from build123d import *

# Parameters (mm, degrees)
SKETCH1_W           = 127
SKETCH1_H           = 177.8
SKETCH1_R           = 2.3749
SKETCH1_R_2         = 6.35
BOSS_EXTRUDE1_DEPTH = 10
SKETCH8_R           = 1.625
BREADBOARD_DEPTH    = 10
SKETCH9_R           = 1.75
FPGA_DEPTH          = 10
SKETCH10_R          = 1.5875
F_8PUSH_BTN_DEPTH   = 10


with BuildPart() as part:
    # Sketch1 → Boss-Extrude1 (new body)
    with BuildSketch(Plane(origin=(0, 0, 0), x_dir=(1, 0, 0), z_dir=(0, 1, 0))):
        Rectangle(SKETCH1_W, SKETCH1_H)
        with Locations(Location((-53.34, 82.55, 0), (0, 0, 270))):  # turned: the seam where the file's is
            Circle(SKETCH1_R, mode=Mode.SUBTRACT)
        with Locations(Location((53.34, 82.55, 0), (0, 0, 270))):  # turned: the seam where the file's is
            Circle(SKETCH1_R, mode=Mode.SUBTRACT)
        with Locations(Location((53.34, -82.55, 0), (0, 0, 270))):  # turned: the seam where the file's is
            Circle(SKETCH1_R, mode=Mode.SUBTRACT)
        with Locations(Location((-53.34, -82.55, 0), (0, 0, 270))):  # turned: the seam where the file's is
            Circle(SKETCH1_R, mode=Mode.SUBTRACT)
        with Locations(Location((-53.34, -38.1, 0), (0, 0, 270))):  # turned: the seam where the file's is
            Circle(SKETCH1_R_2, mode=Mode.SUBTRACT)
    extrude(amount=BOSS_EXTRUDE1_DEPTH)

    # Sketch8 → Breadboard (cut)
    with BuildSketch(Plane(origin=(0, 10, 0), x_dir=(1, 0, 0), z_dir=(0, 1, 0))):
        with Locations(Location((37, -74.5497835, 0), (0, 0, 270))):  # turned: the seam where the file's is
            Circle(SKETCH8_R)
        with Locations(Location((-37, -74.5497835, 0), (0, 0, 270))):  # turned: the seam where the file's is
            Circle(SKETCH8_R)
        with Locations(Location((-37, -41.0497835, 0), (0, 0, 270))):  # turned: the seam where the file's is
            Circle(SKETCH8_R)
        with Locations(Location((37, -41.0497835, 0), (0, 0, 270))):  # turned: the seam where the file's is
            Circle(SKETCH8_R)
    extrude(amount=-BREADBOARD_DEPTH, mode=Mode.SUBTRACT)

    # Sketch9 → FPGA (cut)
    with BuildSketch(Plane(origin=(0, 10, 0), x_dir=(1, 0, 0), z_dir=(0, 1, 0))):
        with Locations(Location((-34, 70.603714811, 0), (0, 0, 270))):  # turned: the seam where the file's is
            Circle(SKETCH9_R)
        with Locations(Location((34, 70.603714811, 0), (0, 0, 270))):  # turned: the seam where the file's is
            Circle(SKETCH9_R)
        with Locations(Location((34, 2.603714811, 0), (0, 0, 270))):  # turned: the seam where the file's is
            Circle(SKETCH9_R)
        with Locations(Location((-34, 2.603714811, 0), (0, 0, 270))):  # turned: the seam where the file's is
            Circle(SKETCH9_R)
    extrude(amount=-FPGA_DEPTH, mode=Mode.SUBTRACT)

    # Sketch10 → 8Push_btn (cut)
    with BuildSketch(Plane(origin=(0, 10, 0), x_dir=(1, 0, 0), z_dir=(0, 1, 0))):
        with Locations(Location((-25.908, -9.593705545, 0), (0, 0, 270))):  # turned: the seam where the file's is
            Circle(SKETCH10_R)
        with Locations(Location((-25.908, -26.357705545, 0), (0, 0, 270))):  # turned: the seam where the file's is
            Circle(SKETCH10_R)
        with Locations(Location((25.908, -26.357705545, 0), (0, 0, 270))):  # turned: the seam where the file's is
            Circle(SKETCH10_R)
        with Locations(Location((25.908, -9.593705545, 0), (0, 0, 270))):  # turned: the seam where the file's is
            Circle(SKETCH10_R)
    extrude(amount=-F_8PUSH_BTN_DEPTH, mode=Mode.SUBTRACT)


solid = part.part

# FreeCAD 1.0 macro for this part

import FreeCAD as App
import Part
import Sketcher

V = App.Vector
Q = App.Units.Quantity

doc = App.newDocument("Part")
body = doc.addObject("PartDesign::Body", "Body")

sketch1 = body.newObject("Sketcher::SketchObject", "Sketch")
sketch1.AttachmentSupport = (doc.getObject("XZ_Plane"), [""])
sketch1.MapMode = "FlatFace"
sketch1.addGeometry([
    Part.LineSegment(V(-63.5, -88.9, 0), V(-63.5, 88.9, 0)),
    Part.LineSegment(V(-63.5, 88.9, 0), V(63.5, 88.9, 0)),
    Part.LineSegment(V(63.5, 88.9, 0), V(63.5, -88.9, 0)),
    Part.LineSegment(V(63.5, -88.9, 0), V(-63.5, -88.9, 0)),
    Part.Circle(V(-53.3, 82.5, 0), V(0, 0, 1), 2.4),
    Part.Circle(V(-53.3, 38.1, 0), V(0, 0, 1), 6.3),
    Part.Circle(V(53.3, 82.5, 0), V(0, 0, 1), 2.4),
    Part.Circle(V(-53.3, -82.5, 0), V(0, 0, 1), 2.4),
    Part.Circle(V(53.3, -82.5, 0), V(0, 0, 1), 2.4),
], False)
sketch1.addConstraint([
    Sketcher.Constraint("Coincident", 0, 2, 1, 1),
    Sketcher.Constraint("Coincident", 1, 2, 2, 1),
    Sketcher.Constraint("Coincident", 2, 2, 3, 1),
    Sketcher.Constraint("Coincident", 3, 2, 0, 1),
    Sketcher.Constraint("Vertical", 0),
    Sketcher.Constraint("Horizontal", 1),
    Sketcher.Constraint("Vertical", 2),
    Sketcher.Constraint("Horizontal", 3),
    Sketcher.Constraint("Equal", 4, 6),
    Sketcher.Constraint("Equal", 6, 7),
    Sketcher.Constraint("Equal", 7, 8),
    Sketcher.Constraint("Symmetric", 6, 3, 7, 3, -1, 1),
    Sketcher.Constraint("Symmetric", 4, 3, 8, 3, -1, 1),
    Sketcher.Constraint("Symmetric", 0, 2, 2, 2, -1, 1),
    Sketcher.Constraint("Symmetric", 4, 3, 6, 3, -2),
    Sketcher.Constraint("Vertical", 4, 3, 5, 3),
    Sketcher.Constraint("Diameter", 5, Q("0.5 in")),
    Sketcher.Constraint("DistanceX", 1, 1, 1, 2, Q("5 in")),
    Sketcher.Constraint("DistanceY", 0, 1, 0, 2, Q("7 in")),
    Sketcher.Constraint("Diameter", 4, Q("0.187 in")),
    Sketcher.Constraint("DistanceY", 5, 3, 0, 2, Q("2 in")),
    Sketcher.Constraint("DistanceX", 4, 3, -1, 1, Q("2.1 in")),
    Sketcher.Constraint("DistanceY", 7, 3, 4, 3, Q("6.5 in")),
])
pad1 = body.newObject("PartDesign::Pad", "Pad")
pad1.Profile = sketch1
pad1.Length = 10
pad1.Reversed = True

sketch2 = body.newObject("Sketcher::SketchObject", "Sketch001")
sketch2.AttachmentSupport = (doc.getObject("XZ_Plane"), [""])
sketch2.MapMode = "FlatFace"
sketch2.AttachmentOffset = App.Placement(V(0, 0, -10), App.Rotation())
sketch2.addGeometry([
    Part.Circle(V(37, 74.5, 0), V(0, 0, 1), 1.6),
    Part.Circle(V(-37, 74.5, 0), V(0, 0, 1), 1.6),
    Part.Circle(V(-37, 41, 0), V(0, 0, 1), 1.6),
    Part.Circle(V(37, 41, 0), V(0, 0, 1), 1.6),
], False)
sketch2.addConstraint([
    Sketcher.Constraint("Equal", 0, 1),
    Sketcher.Constraint("Equal", 1, 2),
    Sketcher.Constraint("Equal", 2, 3),
    Sketcher.Constraint("Symmetric", 0, 3, 1, 3, -2),
    Sketcher.Constraint("Symmetric", 2, 3, 3, 3, -2),
    Sketcher.Constraint("Vertical", 1, 3, 2, 3),
    Sketcher.Constraint("Diameter", 0, 3.25),
    Sketcher.Constraint("DistanceX", -1, 1, 0, 3, 37.0),
    Sketcher.Constraint("DistanceY", 2, 3, 1, 3, 33.5),
    Sketcher.Constraint("DistanceY", -1, 1, 0, 3, 74.549784),
])
pocket1 = body.newObject("PartDesign::Pocket", "Pocket")
pocket1.Profile = sketch2
pocket1.Length = 10
pocket1.Reversed = True

sketch3 = body.newObject("Sketcher::SketchObject", "Sketch002")
sketch3.AttachmentSupport = (doc.getObject("XZ_Plane"), [""])
sketch3.MapMode = "FlatFace"
sketch3.AttachmentOffset = App.Placement(V(0, 0, -10), App.Rotation())
sketch3.addGeometry([
    Part.Circle(V(-34, -70.6, 0), V(0, 0, 1), 1.8),
    Part.Circle(V(34, -70.6, 0), V(0, 0, 1), 1.8),
    Part.Circle(V(34, -2.6, 0), V(0, 0, 1), 1.8),
    Part.Circle(V(-34, -2.6, 0), V(0, 0, 1), 1.8),
], False)
sketch3.addConstraint([
    Sketcher.Constraint("Equal", 0, 1),
    Sketcher.Constraint("Equal", 1, 2),
    Sketcher.Constraint("Equal", 2, 3),
    Sketcher.Constraint("Symmetric", 0, 3, 1, 3, -2),
    Sketcher.Constraint("Symmetric", 2, 3, 3, 3, -2),
    Sketcher.Constraint("Vertical", 1, 3, 2, 3),
    Sketcher.Constraint("Diameter", 0, 3.5),
    Sketcher.Constraint("DistanceX", 0, 3, -1, 1, 34.0),
    Sketcher.Constraint("DistanceY", 1, 3, 2, 3, 68.0),
    Sketcher.Constraint("DistanceY", 0, 3, -1, 1, 70.603715),
])
pocket2 = body.newObject("PartDesign::Pocket", "Pocket001")
pocket2.Profile = sketch3
pocket2.Length = 10
pocket2.Reversed = True

sketch4 = body.newObject("Sketcher::SketchObject", "Sketch003")
sketch4.AttachmentSupport = (doc.getObject("XZ_Plane"), [""])
sketch4.MapMode = "FlatFace"
sketch4.AttachmentOffset = App.Placement(V(0, 0, -10), App.Rotation())
sketch4.addGeometry([
    Part.Circle(V(-25.9, 9.6, 0), V(0, 0, 1), 1.6),
    Part.Circle(V(-25.9, 26.4, 0), V(0, 0, 1), 1.6),
    Part.Circle(V(25.9, 26.4, 0), V(0, 0, 1), 1.6),
    Part.Circle(V(25.9, 9.6, 0), V(0, 0, 1), 1.6),
], False)
sketch4.addConstraint([
    Sketcher.Constraint("Equal", 0, 1),
    Sketcher.Constraint("Equal", 1, 2),
    Sketcher.Constraint("Equal", 2, 3),
    Sketcher.Constraint("Symmetric", 1, 3, 2, 3, -2),
    Sketcher.Constraint("Symmetric", 0, 3, 3, 3, -2),
    Sketcher.Constraint("Vertical", 0, 3, 1, 3),
    Sketcher.Constraint("Diameter", 0, Q("0.125 in")),
    Sketcher.Constraint("DistanceX", 0, 3, -1, 1, Q("1.02 in")),
    Sketcher.Constraint("DistanceY", 0, 3, 1, 3, Q("0.66 in")),
    Sketcher.Constraint("DistanceY", -1, 1, 0, 3, 9.593706),
])
pocket3 = body.newObject("PartDesign::Pocket", "Pocket002")
pocket3.Profile = sketch4
pocket3.Length = 10
pocket3.Reversed = True

doc.recompute()
